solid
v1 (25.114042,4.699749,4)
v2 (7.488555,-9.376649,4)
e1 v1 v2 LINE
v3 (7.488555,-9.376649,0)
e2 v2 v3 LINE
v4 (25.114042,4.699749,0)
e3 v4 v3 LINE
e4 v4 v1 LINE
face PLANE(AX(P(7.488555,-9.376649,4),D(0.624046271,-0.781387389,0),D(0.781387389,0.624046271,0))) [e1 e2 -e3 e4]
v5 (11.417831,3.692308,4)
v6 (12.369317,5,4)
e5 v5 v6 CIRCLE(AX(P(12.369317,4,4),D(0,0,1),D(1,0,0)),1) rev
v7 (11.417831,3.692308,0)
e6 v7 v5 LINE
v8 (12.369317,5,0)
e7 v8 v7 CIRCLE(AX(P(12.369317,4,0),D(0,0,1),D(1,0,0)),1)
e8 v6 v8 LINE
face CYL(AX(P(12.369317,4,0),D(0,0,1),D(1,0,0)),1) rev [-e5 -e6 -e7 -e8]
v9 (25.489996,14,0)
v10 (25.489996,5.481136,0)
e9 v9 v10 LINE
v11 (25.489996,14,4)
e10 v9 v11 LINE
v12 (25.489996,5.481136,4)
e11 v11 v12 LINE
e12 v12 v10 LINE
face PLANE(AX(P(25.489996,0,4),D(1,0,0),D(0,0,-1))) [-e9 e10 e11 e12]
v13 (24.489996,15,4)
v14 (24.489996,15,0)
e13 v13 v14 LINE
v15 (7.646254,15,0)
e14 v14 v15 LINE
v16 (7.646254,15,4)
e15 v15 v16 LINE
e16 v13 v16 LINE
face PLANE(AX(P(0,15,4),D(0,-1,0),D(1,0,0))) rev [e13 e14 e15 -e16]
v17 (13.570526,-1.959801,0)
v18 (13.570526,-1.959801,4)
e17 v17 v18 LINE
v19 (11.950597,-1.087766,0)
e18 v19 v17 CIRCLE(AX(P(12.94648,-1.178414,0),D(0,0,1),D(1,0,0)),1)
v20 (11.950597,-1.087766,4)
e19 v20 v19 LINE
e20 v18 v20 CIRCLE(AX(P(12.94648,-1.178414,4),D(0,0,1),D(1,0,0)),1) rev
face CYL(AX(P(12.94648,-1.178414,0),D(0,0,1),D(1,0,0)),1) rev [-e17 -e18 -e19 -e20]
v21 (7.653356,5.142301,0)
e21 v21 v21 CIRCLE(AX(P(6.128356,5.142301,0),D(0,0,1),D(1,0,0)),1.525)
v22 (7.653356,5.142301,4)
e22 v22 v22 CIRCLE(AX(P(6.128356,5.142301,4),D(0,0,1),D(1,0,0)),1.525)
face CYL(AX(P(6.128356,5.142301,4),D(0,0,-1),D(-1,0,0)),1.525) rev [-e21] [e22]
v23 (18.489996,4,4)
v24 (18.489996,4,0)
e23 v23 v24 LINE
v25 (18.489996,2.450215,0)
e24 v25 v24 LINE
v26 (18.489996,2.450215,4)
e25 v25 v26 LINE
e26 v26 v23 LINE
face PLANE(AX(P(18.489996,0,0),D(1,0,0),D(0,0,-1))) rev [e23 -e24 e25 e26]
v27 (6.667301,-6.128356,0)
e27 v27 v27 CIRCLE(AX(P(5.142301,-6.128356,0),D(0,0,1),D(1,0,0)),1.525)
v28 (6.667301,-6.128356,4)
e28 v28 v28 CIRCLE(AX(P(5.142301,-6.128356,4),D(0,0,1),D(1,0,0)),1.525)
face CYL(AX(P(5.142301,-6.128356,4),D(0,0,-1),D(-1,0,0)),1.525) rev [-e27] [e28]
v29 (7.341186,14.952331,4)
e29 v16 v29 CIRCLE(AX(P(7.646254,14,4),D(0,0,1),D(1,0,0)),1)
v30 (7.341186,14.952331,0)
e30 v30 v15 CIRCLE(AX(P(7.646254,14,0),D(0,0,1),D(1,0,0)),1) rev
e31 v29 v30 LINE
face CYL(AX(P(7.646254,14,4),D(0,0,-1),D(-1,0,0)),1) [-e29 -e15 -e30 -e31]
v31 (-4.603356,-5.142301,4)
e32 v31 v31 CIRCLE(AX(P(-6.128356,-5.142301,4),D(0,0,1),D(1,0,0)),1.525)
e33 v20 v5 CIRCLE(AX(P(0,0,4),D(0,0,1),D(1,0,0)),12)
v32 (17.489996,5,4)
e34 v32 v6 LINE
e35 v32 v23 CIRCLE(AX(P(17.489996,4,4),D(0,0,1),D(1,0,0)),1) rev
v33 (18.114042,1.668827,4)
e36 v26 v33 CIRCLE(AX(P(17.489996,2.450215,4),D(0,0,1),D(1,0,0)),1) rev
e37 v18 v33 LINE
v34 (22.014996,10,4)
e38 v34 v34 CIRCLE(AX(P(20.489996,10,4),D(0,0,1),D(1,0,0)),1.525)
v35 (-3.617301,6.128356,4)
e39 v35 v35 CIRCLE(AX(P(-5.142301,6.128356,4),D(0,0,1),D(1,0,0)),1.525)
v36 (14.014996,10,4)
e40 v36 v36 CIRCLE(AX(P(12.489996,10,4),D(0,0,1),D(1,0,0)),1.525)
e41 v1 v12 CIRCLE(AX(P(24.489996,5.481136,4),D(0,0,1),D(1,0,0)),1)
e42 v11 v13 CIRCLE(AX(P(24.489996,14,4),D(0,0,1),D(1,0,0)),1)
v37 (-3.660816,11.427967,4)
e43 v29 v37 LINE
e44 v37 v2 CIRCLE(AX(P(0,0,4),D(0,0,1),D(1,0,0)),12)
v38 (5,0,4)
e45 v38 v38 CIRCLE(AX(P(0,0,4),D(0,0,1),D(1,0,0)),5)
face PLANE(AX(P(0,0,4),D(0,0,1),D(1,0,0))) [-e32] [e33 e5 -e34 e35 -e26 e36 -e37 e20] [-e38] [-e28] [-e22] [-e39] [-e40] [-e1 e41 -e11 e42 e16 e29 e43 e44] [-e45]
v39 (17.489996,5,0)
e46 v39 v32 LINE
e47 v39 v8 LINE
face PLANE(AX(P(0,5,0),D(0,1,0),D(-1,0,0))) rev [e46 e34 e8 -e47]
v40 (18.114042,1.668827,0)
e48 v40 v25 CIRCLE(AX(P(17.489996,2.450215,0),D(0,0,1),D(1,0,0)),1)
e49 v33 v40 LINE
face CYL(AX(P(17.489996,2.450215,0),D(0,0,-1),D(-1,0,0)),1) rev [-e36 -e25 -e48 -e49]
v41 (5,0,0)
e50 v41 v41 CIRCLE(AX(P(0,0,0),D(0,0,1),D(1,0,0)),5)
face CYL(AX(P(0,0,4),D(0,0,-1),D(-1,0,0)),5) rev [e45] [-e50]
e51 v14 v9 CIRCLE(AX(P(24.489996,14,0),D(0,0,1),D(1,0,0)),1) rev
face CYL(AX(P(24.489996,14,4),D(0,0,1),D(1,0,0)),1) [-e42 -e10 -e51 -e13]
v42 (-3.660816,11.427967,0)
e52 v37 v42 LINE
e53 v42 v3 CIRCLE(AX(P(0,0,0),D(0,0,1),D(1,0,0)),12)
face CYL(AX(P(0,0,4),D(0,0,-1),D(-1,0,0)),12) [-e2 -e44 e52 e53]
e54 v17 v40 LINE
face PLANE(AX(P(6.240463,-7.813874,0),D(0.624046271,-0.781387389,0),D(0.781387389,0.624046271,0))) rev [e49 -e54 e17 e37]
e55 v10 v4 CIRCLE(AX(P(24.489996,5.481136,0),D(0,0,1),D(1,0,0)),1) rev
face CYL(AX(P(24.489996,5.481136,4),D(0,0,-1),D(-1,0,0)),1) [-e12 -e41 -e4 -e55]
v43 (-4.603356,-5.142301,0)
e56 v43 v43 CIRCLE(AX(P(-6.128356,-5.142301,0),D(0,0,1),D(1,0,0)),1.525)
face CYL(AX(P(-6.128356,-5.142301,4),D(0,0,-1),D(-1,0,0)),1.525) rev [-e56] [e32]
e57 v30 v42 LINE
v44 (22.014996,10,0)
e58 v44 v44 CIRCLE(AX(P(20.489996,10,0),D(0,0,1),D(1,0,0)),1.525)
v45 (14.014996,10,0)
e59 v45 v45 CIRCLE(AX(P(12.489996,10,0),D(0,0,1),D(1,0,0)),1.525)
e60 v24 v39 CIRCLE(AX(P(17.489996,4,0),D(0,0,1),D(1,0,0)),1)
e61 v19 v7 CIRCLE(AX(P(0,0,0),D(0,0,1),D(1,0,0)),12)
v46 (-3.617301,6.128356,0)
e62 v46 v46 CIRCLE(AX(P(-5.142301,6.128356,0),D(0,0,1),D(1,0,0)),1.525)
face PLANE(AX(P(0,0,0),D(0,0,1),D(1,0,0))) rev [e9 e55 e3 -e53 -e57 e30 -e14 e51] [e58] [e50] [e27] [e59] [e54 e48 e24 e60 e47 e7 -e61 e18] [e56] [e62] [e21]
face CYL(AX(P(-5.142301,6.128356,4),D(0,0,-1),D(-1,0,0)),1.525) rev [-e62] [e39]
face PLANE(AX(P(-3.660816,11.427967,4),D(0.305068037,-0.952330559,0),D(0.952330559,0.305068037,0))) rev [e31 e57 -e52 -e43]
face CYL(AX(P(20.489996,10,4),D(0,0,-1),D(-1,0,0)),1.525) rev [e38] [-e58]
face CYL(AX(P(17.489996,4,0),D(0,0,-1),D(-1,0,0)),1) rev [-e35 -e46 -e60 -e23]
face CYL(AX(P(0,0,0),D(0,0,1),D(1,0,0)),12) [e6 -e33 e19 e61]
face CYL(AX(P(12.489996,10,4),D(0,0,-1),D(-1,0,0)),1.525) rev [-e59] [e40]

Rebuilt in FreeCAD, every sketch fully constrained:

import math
import FreeCAD as App
import Part
import Sketcher
Q = App.Units.Quantity


def edges_at(feature, points):
    """Names of the edges that pass closest to the given points."""
    edges = feature.Shape.Edges
    near = lambda p: min(range(len(edges)), key=lambda i: edges[i].distToShape(Part.Vertex(*p))[0])
    return sorted({f"Edge{near(p) + 1}" for p in points})

doc = App.newDocument("Part")
body = doc.addObject("PartDesign::Body", "Body")

sketch1 = body.newObject("Sketcher::SketchObject", "Sketch")
sketch1.AttachmentSupport = (doc.getObject("XY_Plane"), [""])
sketch1.MapMode = "FlatFace"
sketch1.addGeometry([
    Part.ArcOfCircle(Part.Circle(App.Vector(0, 0, 0), App.Vector(0, 0, 1), 12), math.radians(108), math.radians(309)),
    Part.LineSegment(App.Vector(7.5, -9.4, 0), App.Vector(25.5, 5, 0)),
    Part.LineSegment(App.Vector(25.5, 5, 0), App.Vector(25.5, 15, 0)),
    Part.LineSegment(App.Vector(25.5, 15, 0), App.Vector(7.5, 15, 0)),
    Part.LineSegment(App.Vector(7.5, 15, 0), App.Vector(-3.7, 11.4, 0)),
    Part.Circle(App.Vector(-6.1, -5.1, 0), App.Vector(0, 0, 1), 1.5),
    Part.Circle(App.Vector(5.1, -6.1, 0), App.Vector(0, 0, 1), 1.5),
    Part.Circle(App.Vector(-5.1, 6.1, 0), App.Vector(0, 0, 1), 1.5),
    Part.Circle(App.Vector(0, 0, 0), App.Vector(0, 0, 1), 5),
    Part.Circle(App.Vector(6.1, 5.1, 0), App.Vector(0, 0, 1), 1.5),
    Part.Circle(App.Vector(12.5, 10, 0), App.Vector(0, 0, 1), 1.5),
    Part.Circle(App.Vector(20.5, 10, 0), App.Vector(0, 0, 1), 1.5),
], False)
sketch1.addConstraint([
    Sketcher.Constraint("Tangent", 0, 2, 1, 1),
    Sketcher.Constraint("Coincident", 1, 2, 2, 1),
    Sketcher.Constraint("Coincident", 2, 2, 3, 1),
    Sketcher.Constraint("Coincident", 3, 2, 4, 1),
    Sketcher.Constraint("Tangent", 4, 2, 0, 1),
    Sketcher.Constraint("Vertical", 2),
    Sketcher.Constraint("Horizontal", 3),
    Sketcher.Constraint("Coincident", 0, 3, -1, 1),
    Sketcher.Constraint("Coincident", 8, 3, -1, 1),
    Sketcher.Constraint("Equal", 5, 6),
    Sketcher.Constraint("Equal", 6, 7),
    Sketcher.Constraint("Equal", 7, 9),
    Sketcher.Constraint("Equal", 9, 10),
    Sketcher.Constraint("Equal", 10, 11),
    Sketcher.Constraint("Symmetric", 6, 3, 7, 3, -1, 1),
    Sketcher.Constraint("Symmetric", 5, 3, 9, 3, -1, 1),
    Sketcher.Constraint("Horizontal", 10, 3, 11, 3),
    Sketcher.Constraint("Diameter", 8, Q("10 mm")),
    Sketcher.Constraint("Radius", 0, Q("12 mm")),
    Sketcher.Constraint("Diameter", 5, Q("3.05 mm")),
    Sketcher.Constraint("DistanceX", 3, 2, 3, 1, Q("18 mm")),
    Sketcher.Constraint("DistanceY", 2, 1, 2, 2, Q("10 mm")),
    Sketcher.Constraint("DistanceY", -1, 1, 10, 3, Q("10 mm")),
    Sketcher.Constraint("DistanceY", -1, 1, 1, 2, Q("5 mm")),
    Sketcher.Constraint("DistanceX", 10, 3, 11, 3, Q("8 mm")),
    Sketcher.Constraint("DistanceX", 11, 3, 1, 2, Q("5 mm")),
    Sketcher.Constraint("DistanceY", 5, 3, -1, 1, Q("5.142301 mm")),
    Sketcher.Constraint("DistanceX", -1, 1, 6, 3, Q("5.142301 mm")),
    Sketcher.Constraint("DistanceX", 9, 3, 0, 2, Q("1.3602 mm")),
    Sketcher.Constraint("DistanceY", 0, 2, -1, 1, Q("9.376649 mm")),
    Sketcher.Constraint("DistanceY", 6, 3, 7, 3, Q("12.256711 mm")),
])
pad1 = body.newObject("PartDesign::Pad", "Pad")
pad1.Profile = sketch1
pad1.Length = 4

sketch2 = body.newObject("Sketcher::SketchObject", "Sketch001")
sketch2.AttachmentSupport = (doc.getObject("XY_Plane"), [""])
sketch2.MapMode = "FlatFace"
sketch2.addGeometry([
    Part.ArcOfCircle(Part.Circle(App.Vector(0, 0, 0), App.Vector(0, 0, 1), 12), math.radians(-17.83), math.radians(0)),
    Part.LineSegment(App.Vector(11.4, -3.7, 0), App.Vector(18.5, 2, 0)),
    Part.LineSegment(App.Vector(18.5, 2, 0), App.Vector(18.5, 5, 0)),
    Part.LineSegment(App.Vector(18.5, 5, 0), App.Vector(10.9, 5, 0)),
    Part.ArcOfCircle(Part.Circle(App.Vector(0, 0, 0), App.Vector(0, 0, 1), 12), math.radians(0), math.radians(25)),
], False)
sketch2.addConstraint([
    Sketcher.Constraint("Coincident", 0, 1, 1, 1),
    Sketcher.Constraint("Coincident", 1, 2, 2, 1),
    Sketcher.Constraint("Coincident", 2, 2, 3, 1),
    Sketcher.Constraint("Coincident", 3, 2, 4, 2),
    Sketcher.Constraint("Tangent", 4, 1, 0, 2),
    Sketcher.Constraint("Vertical", 2),
    Sketcher.Constraint("Horizontal", 3),
    Sketcher.Constraint("Coincident", 0, 3, -1, 1),
    Sketcher.Constraint("Equal", 0, 4),
    Sketcher.Constraint("PointOnObject", 4, 1, -1),
    Sketcher.Constraint("Radius", 0, Q("12 mm")),
    Sketcher.Constraint("DistanceY", -1, 1, 2, 2, Q("5 mm")),
    Sketcher.Constraint("DistanceY", 2, 1, 2, 2, Q("3.030922 mm")),
    Sketcher.Constraint("DistanceX", -1, 1, 0, 1, Q("11.4236 mm")),
    Sketcher.Constraint("DistanceX", 3, 2, 3, 1, Q("7.581284 mm")),
])
pocket1 = body.newObject("PartDesign::Pocket", "Pocket")
pocket1.Profile = sketch2
pocket1.Length = 4
pocket1.Reversed = True
doc.recompute()

fillet = body.newObject("PartDesign::Fillet", "Fillet")
fillet.Base = (pocket1, edges_at(pocket1, [
    (7.49, 15, 2),
    (25.49, 15, 2),
    (25.49, 5, 2),
    (11.424, -3.674, 2),
    (10.909, 5, 2),
    (18.49, 5, 2),
    (18.49, 1.969, 2),
]))
fillet.Radius = 1

doc.recompute()
